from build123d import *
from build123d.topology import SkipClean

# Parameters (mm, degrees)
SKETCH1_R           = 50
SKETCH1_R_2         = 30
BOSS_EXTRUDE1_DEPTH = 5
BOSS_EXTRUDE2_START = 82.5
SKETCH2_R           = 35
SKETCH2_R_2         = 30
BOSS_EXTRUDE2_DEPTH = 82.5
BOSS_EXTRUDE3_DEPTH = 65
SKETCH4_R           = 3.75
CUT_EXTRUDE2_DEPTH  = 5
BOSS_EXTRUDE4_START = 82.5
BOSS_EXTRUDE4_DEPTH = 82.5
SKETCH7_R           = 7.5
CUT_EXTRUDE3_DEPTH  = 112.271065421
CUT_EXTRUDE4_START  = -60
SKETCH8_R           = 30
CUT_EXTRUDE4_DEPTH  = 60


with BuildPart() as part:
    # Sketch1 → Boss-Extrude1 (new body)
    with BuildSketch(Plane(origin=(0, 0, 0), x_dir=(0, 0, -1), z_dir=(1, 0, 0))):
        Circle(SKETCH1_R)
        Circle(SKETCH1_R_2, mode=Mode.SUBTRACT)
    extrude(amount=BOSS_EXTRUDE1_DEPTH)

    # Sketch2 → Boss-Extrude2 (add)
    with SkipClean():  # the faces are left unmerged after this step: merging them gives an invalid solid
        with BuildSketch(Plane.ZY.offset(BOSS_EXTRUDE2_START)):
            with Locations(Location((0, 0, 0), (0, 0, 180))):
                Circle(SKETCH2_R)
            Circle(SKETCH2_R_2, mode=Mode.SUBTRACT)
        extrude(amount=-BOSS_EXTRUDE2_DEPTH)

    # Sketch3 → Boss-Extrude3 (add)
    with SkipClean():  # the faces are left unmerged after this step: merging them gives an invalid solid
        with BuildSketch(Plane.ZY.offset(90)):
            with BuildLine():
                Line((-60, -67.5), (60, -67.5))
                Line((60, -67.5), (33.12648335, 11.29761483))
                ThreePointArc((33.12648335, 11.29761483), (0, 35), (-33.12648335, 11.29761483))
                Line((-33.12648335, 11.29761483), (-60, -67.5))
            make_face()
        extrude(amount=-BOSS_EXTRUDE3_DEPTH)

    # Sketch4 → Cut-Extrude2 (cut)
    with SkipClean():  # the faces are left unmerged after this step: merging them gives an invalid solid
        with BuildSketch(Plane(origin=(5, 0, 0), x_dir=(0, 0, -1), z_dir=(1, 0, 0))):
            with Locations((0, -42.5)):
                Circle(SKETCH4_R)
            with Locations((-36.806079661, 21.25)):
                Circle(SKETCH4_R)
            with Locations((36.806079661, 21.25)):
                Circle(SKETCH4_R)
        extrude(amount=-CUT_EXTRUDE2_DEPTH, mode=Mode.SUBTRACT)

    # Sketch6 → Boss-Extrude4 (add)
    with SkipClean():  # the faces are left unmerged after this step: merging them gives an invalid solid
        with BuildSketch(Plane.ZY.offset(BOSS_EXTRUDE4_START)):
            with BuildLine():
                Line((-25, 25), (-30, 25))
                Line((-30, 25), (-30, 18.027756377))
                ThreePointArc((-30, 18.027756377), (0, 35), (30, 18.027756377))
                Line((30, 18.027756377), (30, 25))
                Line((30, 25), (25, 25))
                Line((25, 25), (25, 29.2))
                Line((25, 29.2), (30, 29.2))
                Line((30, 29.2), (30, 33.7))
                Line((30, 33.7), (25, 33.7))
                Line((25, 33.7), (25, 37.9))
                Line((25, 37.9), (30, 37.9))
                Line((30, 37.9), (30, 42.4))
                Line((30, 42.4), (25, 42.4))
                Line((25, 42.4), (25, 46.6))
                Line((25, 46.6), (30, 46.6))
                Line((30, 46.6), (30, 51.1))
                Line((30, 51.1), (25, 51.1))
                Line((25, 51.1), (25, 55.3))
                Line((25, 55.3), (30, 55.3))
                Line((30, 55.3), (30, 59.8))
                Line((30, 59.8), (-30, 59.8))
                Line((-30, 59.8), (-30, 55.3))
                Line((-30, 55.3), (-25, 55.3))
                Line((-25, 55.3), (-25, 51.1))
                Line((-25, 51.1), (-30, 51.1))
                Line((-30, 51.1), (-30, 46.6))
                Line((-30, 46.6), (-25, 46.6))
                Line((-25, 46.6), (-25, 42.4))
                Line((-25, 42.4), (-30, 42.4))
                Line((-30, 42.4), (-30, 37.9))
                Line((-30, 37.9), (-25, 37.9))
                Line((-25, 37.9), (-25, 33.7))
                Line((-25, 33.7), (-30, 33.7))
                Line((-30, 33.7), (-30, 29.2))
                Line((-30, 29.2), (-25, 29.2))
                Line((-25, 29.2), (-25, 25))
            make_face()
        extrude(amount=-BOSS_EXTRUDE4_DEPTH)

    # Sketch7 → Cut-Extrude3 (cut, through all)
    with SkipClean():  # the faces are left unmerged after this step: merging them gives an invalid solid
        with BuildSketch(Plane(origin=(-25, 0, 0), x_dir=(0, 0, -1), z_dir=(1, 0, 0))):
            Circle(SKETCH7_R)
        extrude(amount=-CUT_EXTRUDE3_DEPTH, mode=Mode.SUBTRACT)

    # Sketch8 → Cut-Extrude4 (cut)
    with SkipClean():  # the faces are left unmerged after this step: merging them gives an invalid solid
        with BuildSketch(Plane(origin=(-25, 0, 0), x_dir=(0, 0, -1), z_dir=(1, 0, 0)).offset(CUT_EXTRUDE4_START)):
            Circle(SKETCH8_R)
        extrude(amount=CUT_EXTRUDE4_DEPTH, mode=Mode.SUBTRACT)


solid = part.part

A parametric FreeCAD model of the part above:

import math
import FreeCAD as App
import Part
import Sketcher
from FreeCAD import Vector

doc = App.newDocument("Part")
params = doc.addObject("Spreadsheet::Sheet", "Params")
for row, (alias, value) in enumerate([
    ("sketch1_diameter", "100 mm"),
    ("sketch1_diameter2", "60 mm"),
    ("pad1_length", "5 mm"),
    ("sketch2_diameter", "70 mm"),
    ("sketch2_diameter2", "60 mm"),
    ("pad2_length", "82.5 mm"),
    ("sketch3_radius", "35 mm"),
    ("sketch3_height", "120 mm"),
    ("pad3_length", "65 mm"),
    ("sketch4_diameter", "7.5 mm"),
    ("pocket1_length", "5 mm"),
    ("sketch5_radius", "35 mm"),
    ("sketch5_height", "5 mm"),
    ("sketch5_height2", "60 mm"),
    ("sketch5_width", "4.2 mm"),
    ("sketch5_width2", "4.5 mm"),
    ("pad4_length", "82.5 mm"),
    ("sketch6_diameter", "15 mm"),
    ("sketch7_diameter", "60 mm"),
    ("pocket3_length", "60 mm"),
], start=1):
    params.set(f"A{row}", alias)
    params.set(f"B{row}", "=" + value)
    params.setAlias(f"B{row}", alias)

body = doc.addObject("PartDesign::Body", "Body")

# Sketch on YZ plane
sketch1 = body.newObject("Sketcher::SketchObject", "Sketch")
sketch1.AttachmentSupport = (doc.getObject("YZ_Plane"), [""])
sketch1.MapMode = "FlatFace"
sketch1.addGeometry([
    Part.Circle(Vector(0, 0, 0), Vector(0, 0, 1), 50),
    Part.Circle(Vector(0, 0, 0), Vector(0, 0, 1), 30),
], False)
sketch1.addConstraint([
    Sketcher.Constraint("Coincident", 0, 3, -1, 1),
    Sketcher.Constraint("Coincident", 1, 3, -1, 1),
    Sketcher.Constraint("Diameter", 0, 100.0),
    Sketcher.Constraint("Diameter", 1, 60.0),
])
sketch1.setExpression("Constraints[2]", "Params.sketch1_diameter")
sketch1.setExpression("Constraints[3]", "Params.sketch1_diameter2")
pad1 = body.newObject("PartDesign::Pad", "Pad")
pad1.Profile = sketch1
pad1.setExpression("Length", "Params.pad1_length")

# Sketch on YZ plane
sketch2 = body.newObject("Sketcher::SketchObject", "Sketch001")
sketch2.AttachmentSupport = (doc.getObject("YZ_Plane"), [""])
sketch2.MapMode = "FlatFace"
sketch2.AttachmentOffset = App.Placement(Vector(0, 0, -82.5), App.Rotation())
sketch2.addGeometry([
    Part.Circle(Vector(0, 0, 0), Vector(0, 0, 1), 35),
    Part.Circle(Vector(0, 0, 0), Vector(0, 0, 1), 30),
], False)
sketch2.addConstraint([
    Sketcher.Constraint("Coincident", 0, 3, -1, 1),
    Sketcher.Constraint("Coincident", 1, 3, -1, 1),
    Sketcher.Constraint("Diameter", 0, 70.0),
    Sketcher.Constraint("Diameter", 1, 60.0),
])
sketch2.setExpression("Constraints[2]", "Params.sketch2_diameter")
sketch2.setExpression("Constraints[3]", "Params.sketch2_diameter2")
pad2 = body.newObject("PartDesign::Pad", "Pad001")
pad2.Profile = sketch2
pad2.setExpression("Length", "Params.pad2_length")

# Sketch on YZ plane
sketch3 = body.newObject("Sketcher::SketchObject", "Sketch002")
sketch3.AttachmentSupport = (doc.getObject("YZ_Plane"), [""])
sketch3.MapMode = "FlatFace"
sketch3.AttachmentOffset = App.Placement(Vector(0, 0, -90), App.Rotation())
sketch3.addGeometry([
    Part.LineSegment(Vector(-68, -60, 0), Vector(-68, 60, 0)),
    Part.LineSegment(Vector(-68, 60, 0), Vector(11, 33, 0)),
    Part.ArcOfCircle(Part.Circle(Vector(0, 0, 0), Vector(0, 0, 1), 35), math.radians(-71), math.radians(71)),
    Part.LineSegment(Vector(11, -33, 0), Vector(-68, -60, 0)),
], False)
sketch3.addConstraint([
    Sketcher.Constraint("Coincident", 0, 2, 1, 1),
    Sketcher.Constraint("Tangent", 1, 2, 2, 2),
    Sketcher.Constraint("Tangent", 2, 1, 3, 1),
    Sketcher.Constraint("Coincident", 3, 2, 0, 1),
    Sketcher.Constraint("Vertical", 0),
    Sketcher.Constraint("Coincident", 2, 3, -1, 1),
    Sketcher.Constraint("Vertical", 1, 2, 2, 1),
    Sketcher.Constraint("Radius", 2, 35.0),
    Sketcher.Constraint("DistanceY", 0, 1, 0, 2, 120.0),
    Sketcher.Constraint("DistanceX", 0, 2, -1, 1, 67.5),
])
sketch3.setExpression("Constraints[7]", "Params.sketch3_radius")
sketch3.setExpression("Constraints[8]", "Params.sketch3_height")
pad3 = body.newObject("PartDesign::Pad", "Pad002")
pad3.Profile = sketch3
pad3.setExpression("Length", "Params.pad3_length")

# Sketch on YZ plane
sketch4 = body.newObject("Sketcher::SketchObject", "Sketch003")
sketch4.AttachmentSupport = (doc.getObject("YZ_Plane"), [""])
sketch4.MapMode = "FlatFace"
sketch4.AttachmentOffset = App.Placement(Vector(0, 0, 5), App.Rotation())
sketch4.addGeometry([
    Part.Circle(Vector(-42.5, 0, 0), Vector(0, 0, 1), 3.8),
    Part.Circle(Vector(21.2, 36.8, 0), Vector(0, 0, 1), 3.8),
    Part.Circle(Vector(21.2, -36.8, 0), Vector(0, 0, 1), 3.8),
], False)
sketch4.addConstraint([
    Sketcher.Constraint("Equal", 0, 1),
    Sketcher.Constraint("Equal", 1, 2),
    Sketcher.Constraint("Symmetric", 1, 3, 2, 3, -1),
    Sketcher.Constraint("PointOnObject", 0, 3, -1),
    Sketcher.Constraint("Diameter", 0, 7.5),
    Sketcher.Constraint("DistanceX", 0, 3, -1, 1, 42.5),
    Sketcher.Constraint("DistanceX", -1, 1, 1, 3, 21.25),
    Sketcher.Constraint("DistanceY", -1, 1, 1, 3, 36.80608),
])
sketch4.setExpression("Constraints[4]", "Params.sketch4_diameter")
pocket1 = body.newObject("PartDesign::Pocket", "Pocket")
pocket1.Profile = sketch4
pocket1.setExpression("Length", "Params.pocket1_length")

# Sketch on YZ plane
sketch5 = body.newObject("Sketcher::SketchObject", "Sketch004")
sketch5.AttachmentSupport = (doc.getObject("YZ_Plane"), [""])
sketch5.MapMode = "FlatFace"
sketch5.AttachmentOffset = App.Placement(Vector(0, 0, -82.5), App.Rotation())
sketch5.addGeometry([
    Part.LineSegment(Vector(25, -25, 0), Vector(25, -30, 0)),  # 0
    Part.LineSegment(Vector(25, -30, 0), Vector(18, -30, 0)),  # 1
    Part.ArcOfCircle(Part.Circle(Vector(0, 0, 0), Vector(0, 0, 1), 35), math.radians(-59), math.radians(59)),  # 2
    Part.LineSegment(Vector(18, 30, 0), Vector(25, 30, 0)),  # 3
    Part.LineSegment(Vector(25, 30, 0), Vector(25, 25, 0)),  # 4
    Part.LineSegment(Vector(25, 25, 0), Vector(29.2, 25, 0)),  # 5
    Part.LineSegment(Vector(29.2, 25, 0), Vector(29.2, 30, 0)),  # 6
    Part.LineSegment(Vector(29.2, 30, 0), Vector(33.7, 30, 0)),  # 7
    Part.LineSegment(Vector(33.7, 30, 0), Vector(33.7, 25, 0)),  # 8
    Part.LineSegment(Vector(33.7, 25, 0), Vector(37.9, 25, 0)),  # 9
    Part.LineSegment(Vector(37.9, 25, 0), Vector(37.9, 30, 0)),  # 10
    Part.LineSegment(Vector(37.9, 30, 0), Vector(42.4, 30, 0)),  # 11
    Part.LineSegment(Vector(42.4, 30, 0), Vector(42.4, 25, 0)),  # 12
    Part.LineSegment(Vector(42.4, 25, 0), Vector(46.6, 25, 0)),  # 13
    Part.LineSegment(Vector(46.6, 25, 0), Vector(46.6, 30, 0)),  # 14
    Part.LineSegment(Vector(46.6, 30, 0), Vector(51.1, 30, 0)),  # 15
    Part.LineSegment(Vector(51.1, 30, 0), Vector(51.1, 25, 0)),  # 16
    Part.LineSegment(Vector(51.1, 25, 0), Vector(55.3, 25, 0)),  # 17
    Part.LineSegment(Vector(55.3, 25, 0), Vector(55.3, 30, 0)),  # 18
    Part.LineSegment(Vector(55.3, 30, 0), Vector(59.8, 30, 0)),  # 19
    Part.LineSegment(Vector(59.8, 30, 0), Vector(59.8, -30, 0)),  # 20
    Part.LineSegment(Vector(59.8, -30, 0), Vector(55.3, -30, 0)),  # 21
    Part.LineSegment(Vector(55.3, -30, 0), Vector(55.3, -25, 0)),  # 22
    Part.LineSegment(Vector(55.3, -25, 0), Vector(51.1, -25, 0)),  # 23
    Part.LineSegment(Vector(51.1, -25, 0), Vector(51.1, -30, 0)),  # 24
    Part.LineSegment(Vector(51.1, -30, 0), Vector(46.6, -30, 0)),  # 25
    Part.LineSegment(Vector(46.6, -30, 0), Vector(46.6, -25, 0)),  # 26
    Part.LineSegment(Vector(46.6, -25, 0), Vector(42.4, -25, 0)),  # 27
    Part.LineSegment(Vector(42.4, -25, 0), Vector(42.4, -30, 0)),  # 28
    Part.LineSegment(Vector(42.4, -30, 0), Vector(37.9, -30, 0)),  # 29
    Part.LineSegment(Vector(37.9, -30, 0), Vector(37.9, -25, 0)),  # 30
    Part.LineSegment(Vector(37.9, -25, 0), Vector(33.7, -25, 0)),  # 31
    Part.LineSegment(Vector(33.7, -25, 0), Vector(33.7, -30, 0)),  # 32
    Part.LineSegment(Vector(33.7, -30, 0), Vector(29.2, -30, 0)),  # 33
    Part.LineSegment(Vector(29.2, -30, 0), Vector(29.2, -25, 0)),  # 34
    Part.LineSegment(Vector(29.2, -25, 0), Vector(25, -25, 0)),  # 35
], False)
sketch5.addConstraint([
    Sketcher.Constraint("Coincident", 0, 2, 1, 1),
    Sketcher.Constraint("Coincident", 1, 2, 2, 1),
    Sketcher.Constraint("Coincident", 2, 2, 3, 1),
    Sketcher.Constraint("Coincident", 3, 2, 4, 1),
    Sketcher.Constraint("Coincident", 4, 2, 5, 1),
    Sketcher.Constraint("Coincident", 5, 2, 6, 1),
    Sketcher.Constraint("Coincident", 6, 2, 7, 1),
    Sketcher.Constraint("Coincident", 7, 2, 8, 1),
    Sketcher.Constraint("Coincident", 8, 2, 9, 1),
    Sketcher.Constraint("Coincident", 9, 2, 10, 1),
    Sketcher.Constraint("Coincident", 10, 2, 11, 1),
    Sketcher.Constraint("Coincident", 11, 2, 12, 1),
    Sketcher.Constraint("Coincident", 12, 2, 13, 1),
    Sketcher.Constraint("Coincident", 13, 2, 14, 1),
    Sketcher.Constraint("Coincident", 14, 2, 15, 1),
    Sketcher.Constraint("Coincident", 15, 2, 16, 1),
    Sketcher.Constraint("Coincident", 16, 2, 17, 1),
    Sketcher.Constraint("Coincident", 17, 2, 18, 1),
    Sketcher.Constraint("Coincident", 18, 2, 19, 1),
    Sketcher.Constraint("Coincident", 19, 2, 20, 1),
    Sketcher.Constraint("Coincident", 20, 2, 21, 1),
    Sketcher.Constraint("Coincident", 21, 2, 22, 1),
    Sketcher.Constraint("Coincident", 22, 2, 23, 1),
    Sketcher.Constraint("Coincident", 23, 2, 24, 1),
    Sketcher.Constraint("Coincident", 24, 2, 25, 1),
    Sketcher.Constraint("Coincident", 25, 2, 26, 1),
    Sketcher.Constraint("Coincident", 26, 2, 27, 1),
    Sketcher.Constraint("Coincident", 27, 2, 28, 1),
    Sketcher.Constraint("Coincident", 28, 2, 29, 1),
    Sketcher.Constraint("Coincident", 29, 2, 30, 1),
    Sketcher.Constraint("Coincident", 30, 2, 31, 1),
    Sketcher.Constraint("Coincident", 31, 2, 32, 1),
    Sketcher.Constraint("Coincident", 32, 2, 33, 1),
    Sketcher.Constraint("Coincident", 33, 2, 34, 1),
    Sketcher.Constraint("Coincident", 34, 2, 35, 1),
    Sketcher.Constraint("Coincident", 35, 2, 0, 1),
    Sketcher.Constraint("Vertical", 0),
    Sketcher.Constraint("Horizontal", 1),
    Sketcher.Constraint("Horizontal", 3),
    Sketcher.Constraint("Vertical", 4),
    Sketcher.Constraint("Horizontal", 5),
    Sketcher.Constraint("Vertical", 6),
    Sketcher.Constraint("Horizontal", 7),
    Sketcher.Constraint("Vertical", 8),
    Sketcher.Constraint("Horizontal", 9),
    Sketcher.Constraint("Vertical", 10),
    Sketcher.Constraint("Horizontal", 11),
    Sketcher.Constraint("Vertical", 12),
    Sketcher.Constraint("Horizontal", 13),
    Sketcher.Constraint("Vertical", 14),
    Sketcher.Constraint("Horizontal", 15),
    Sketcher.Constraint("Vertical", 16),
    Sketcher.Constraint("Horizontal", 17),
    Sketcher.Constraint("Vertical", 18),
    Sketcher.Constraint("Horizontal", 19),
    Sketcher.Constraint("Vertical", 20),
    Sketcher.Constraint("Horizontal", 21),
    Sketcher.Constraint("Vertical", 22),
    Sketcher.Constraint("Horizontal", 23),
    Sketcher.Constraint("Vertical", 24),
    Sketcher.Constraint("Horizontal", 25),
    Sketcher.Constraint("Vertical", 26),
    Sketcher.Constraint("Horizontal", 27),
    Sketcher.Constraint("Vertical", 28),
    Sketcher.Constraint("Horizontal", 29),
    Sketcher.Constraint("Vertical", 30),
    Sketcher.Constraint("Horizontal", 31),
    Sketcher.Constraint("Vertical", 32),
    Sketcher.Constraint("Horizontal", 33),
    Sketcher.Constraint("Vertical", 34),
    Sketcher.Constraint("Horizontal", 35),
    Sketcher.Constraint("Coincident", 2, 3, -1, 1),
    Sketcher.Constraint("Symmetric", 0, 2, 3, 2, -1),
    Sketcher.Constraint("Symmetric", 18, 2, 21, 2, -1),
    Sketcher.Constraint("Symmetric", 16, 2, 23, 2, -1),
    Sketcher.Constraint("Symmetric", 14, 2, 25, 2, -1),
    Sketcher.Constraint("Symmetric", 12, 2, 27, 2, -1),
    Sketcher.Constraint("Symmetric", 10, 2, 29, 2, -1),
    Sketcher.Constraint("Symmetric", 8, 2, 31, 2, -1),
    Sketcher.Constraint("Symmetric", 6, 2, 33, 2, -1),
    Sketcher.Constraint("Horizontal", 3, 2, 6, 2),
    Sketcher.Constraint("Horizontal", 5, 2, 8, 2),
    Sketcher.Constraint("Horizontal", 7, 2, 10, 2),
    Sketcher.Constraint("Horizontal", 9, 2, 12, 2),
    Sketcher.Constraint("Horizontal", 11, 2, 14, 2),
    Sketcher.Constraint("Horizontal", 13, 2, 16, 2),
    Sketcher.Constraint("Horizontal", 15, 2, 18, 2),
    Sketcher.Constraint("Horizontal", 31, 2, 34, 2),
    Sketcher.Constraint("Equal", 5, 9),
    Sketcher.Constraint("Equal", 7, 11),
    Sketcher.Constraint("Equal", 9, 13),
    Sketcher.Constraint("Equal", 11, 15),
    Sketcher.Constraint("Equal", 13, 17),
    Sketcher.Constraint("Equal", 15, 19),
    Sketcher.Constraint("Radius", 2, 35.0),
    Sketcher.Constraint("DistanceY", 0, 2, 0, 1, 5.0),
    Sketcher.Constraint("DistanceY", 20, 2, 20, 1, 60.0),
    Sketcher.Constraint("DistanceX", 5, 1, 5, 2, 4.2),
    Sketcher.Constraint("DistanceX", 7, 1, 7, 2, 4.5),
    Sketcher.Constraint("DistanceX", -1, 1, 0, 2, 25.0),
])
sketch5.setExpression("Constraints[94]", "Params.sketch5_radius")
sketch5.setExpression("Constraints[95]", "Params.sketch5_height")
sketch5.setExpression("Constraints[96]", "Params.sketch5_height2")
sketch5.setExpression("Constraints[97]", "Params.sketch5_width")
sketch5.setExpression("Constraints[98]", "Params.sketch5_width2")
pad4 = body.newObject("PartDesign::Pad", "Pad003")
pad4.Profile = sketch5
pad4.setExpression("Length", "Params.pad4_length")

# Sketch on YZ plane
sketch6 = body.newObject("Sketcher::SketchObject", "Sketch005")
sketch6.AttachmentSupport = (doc.getObject("YZ_Plane"), [""])
sketch6.MapMode = "FlatFace"
sketch6.AttachmentOffset = App.Placement(Vector(0, 0, -25), App.Rotation())
sketch6.addGeometry(Part.Circle(Vector(0, 0, 0), Vector(0, 0, 1), 8), False)
sketch6.addConstraint([
    Sketcher.Constraint("Coincident", 0, 3, -1, 1),
    Sketcher.Constraint("Diameter", 0, 15.0),
])
sketch6.setExpression("Constraints[1]", "Params.sketch6_diameter")
pocket2 = body.newObject("PartDesign::Pocket", "Pocket001")
pocket2.Profile = sketch6
pocket2.Type = "ThroughAll"

# Sketch on YZ plane
sketch7 = body.newObject("Sketcher::SketchObject", "Sketch006")
sketch7.AttachmentSupport = (doc.getObject("YZ_Plane"), [""])
sketch7.MapMode = "FlatFace"
sketch7.AttachmentOffset = App.Placement(Vector(0, 0, -85), App.Rotation())
sketch7.addGeometry(Part.Circle(Vector(0, 0, 0), Vector(0, 0, 1), 30), False)
sketch7.addConstraint([
    Sketcher.Constraint("Coincident", 0, 3, -1, 1),
    Sketcher.Constraint("Diameter", 0, 60.0),
])
sketch7.setExpression("Constraints[1]", "Params.sketch7_diameter")
pocket3 = body.newObject("PartDesign::Pocket", "Pocket002")
pocket3.Profile = sketch7
pocket3.setExpression("Length", "Params.pocket3_length")
pocket3.Reversed = True

doc.recompute()
